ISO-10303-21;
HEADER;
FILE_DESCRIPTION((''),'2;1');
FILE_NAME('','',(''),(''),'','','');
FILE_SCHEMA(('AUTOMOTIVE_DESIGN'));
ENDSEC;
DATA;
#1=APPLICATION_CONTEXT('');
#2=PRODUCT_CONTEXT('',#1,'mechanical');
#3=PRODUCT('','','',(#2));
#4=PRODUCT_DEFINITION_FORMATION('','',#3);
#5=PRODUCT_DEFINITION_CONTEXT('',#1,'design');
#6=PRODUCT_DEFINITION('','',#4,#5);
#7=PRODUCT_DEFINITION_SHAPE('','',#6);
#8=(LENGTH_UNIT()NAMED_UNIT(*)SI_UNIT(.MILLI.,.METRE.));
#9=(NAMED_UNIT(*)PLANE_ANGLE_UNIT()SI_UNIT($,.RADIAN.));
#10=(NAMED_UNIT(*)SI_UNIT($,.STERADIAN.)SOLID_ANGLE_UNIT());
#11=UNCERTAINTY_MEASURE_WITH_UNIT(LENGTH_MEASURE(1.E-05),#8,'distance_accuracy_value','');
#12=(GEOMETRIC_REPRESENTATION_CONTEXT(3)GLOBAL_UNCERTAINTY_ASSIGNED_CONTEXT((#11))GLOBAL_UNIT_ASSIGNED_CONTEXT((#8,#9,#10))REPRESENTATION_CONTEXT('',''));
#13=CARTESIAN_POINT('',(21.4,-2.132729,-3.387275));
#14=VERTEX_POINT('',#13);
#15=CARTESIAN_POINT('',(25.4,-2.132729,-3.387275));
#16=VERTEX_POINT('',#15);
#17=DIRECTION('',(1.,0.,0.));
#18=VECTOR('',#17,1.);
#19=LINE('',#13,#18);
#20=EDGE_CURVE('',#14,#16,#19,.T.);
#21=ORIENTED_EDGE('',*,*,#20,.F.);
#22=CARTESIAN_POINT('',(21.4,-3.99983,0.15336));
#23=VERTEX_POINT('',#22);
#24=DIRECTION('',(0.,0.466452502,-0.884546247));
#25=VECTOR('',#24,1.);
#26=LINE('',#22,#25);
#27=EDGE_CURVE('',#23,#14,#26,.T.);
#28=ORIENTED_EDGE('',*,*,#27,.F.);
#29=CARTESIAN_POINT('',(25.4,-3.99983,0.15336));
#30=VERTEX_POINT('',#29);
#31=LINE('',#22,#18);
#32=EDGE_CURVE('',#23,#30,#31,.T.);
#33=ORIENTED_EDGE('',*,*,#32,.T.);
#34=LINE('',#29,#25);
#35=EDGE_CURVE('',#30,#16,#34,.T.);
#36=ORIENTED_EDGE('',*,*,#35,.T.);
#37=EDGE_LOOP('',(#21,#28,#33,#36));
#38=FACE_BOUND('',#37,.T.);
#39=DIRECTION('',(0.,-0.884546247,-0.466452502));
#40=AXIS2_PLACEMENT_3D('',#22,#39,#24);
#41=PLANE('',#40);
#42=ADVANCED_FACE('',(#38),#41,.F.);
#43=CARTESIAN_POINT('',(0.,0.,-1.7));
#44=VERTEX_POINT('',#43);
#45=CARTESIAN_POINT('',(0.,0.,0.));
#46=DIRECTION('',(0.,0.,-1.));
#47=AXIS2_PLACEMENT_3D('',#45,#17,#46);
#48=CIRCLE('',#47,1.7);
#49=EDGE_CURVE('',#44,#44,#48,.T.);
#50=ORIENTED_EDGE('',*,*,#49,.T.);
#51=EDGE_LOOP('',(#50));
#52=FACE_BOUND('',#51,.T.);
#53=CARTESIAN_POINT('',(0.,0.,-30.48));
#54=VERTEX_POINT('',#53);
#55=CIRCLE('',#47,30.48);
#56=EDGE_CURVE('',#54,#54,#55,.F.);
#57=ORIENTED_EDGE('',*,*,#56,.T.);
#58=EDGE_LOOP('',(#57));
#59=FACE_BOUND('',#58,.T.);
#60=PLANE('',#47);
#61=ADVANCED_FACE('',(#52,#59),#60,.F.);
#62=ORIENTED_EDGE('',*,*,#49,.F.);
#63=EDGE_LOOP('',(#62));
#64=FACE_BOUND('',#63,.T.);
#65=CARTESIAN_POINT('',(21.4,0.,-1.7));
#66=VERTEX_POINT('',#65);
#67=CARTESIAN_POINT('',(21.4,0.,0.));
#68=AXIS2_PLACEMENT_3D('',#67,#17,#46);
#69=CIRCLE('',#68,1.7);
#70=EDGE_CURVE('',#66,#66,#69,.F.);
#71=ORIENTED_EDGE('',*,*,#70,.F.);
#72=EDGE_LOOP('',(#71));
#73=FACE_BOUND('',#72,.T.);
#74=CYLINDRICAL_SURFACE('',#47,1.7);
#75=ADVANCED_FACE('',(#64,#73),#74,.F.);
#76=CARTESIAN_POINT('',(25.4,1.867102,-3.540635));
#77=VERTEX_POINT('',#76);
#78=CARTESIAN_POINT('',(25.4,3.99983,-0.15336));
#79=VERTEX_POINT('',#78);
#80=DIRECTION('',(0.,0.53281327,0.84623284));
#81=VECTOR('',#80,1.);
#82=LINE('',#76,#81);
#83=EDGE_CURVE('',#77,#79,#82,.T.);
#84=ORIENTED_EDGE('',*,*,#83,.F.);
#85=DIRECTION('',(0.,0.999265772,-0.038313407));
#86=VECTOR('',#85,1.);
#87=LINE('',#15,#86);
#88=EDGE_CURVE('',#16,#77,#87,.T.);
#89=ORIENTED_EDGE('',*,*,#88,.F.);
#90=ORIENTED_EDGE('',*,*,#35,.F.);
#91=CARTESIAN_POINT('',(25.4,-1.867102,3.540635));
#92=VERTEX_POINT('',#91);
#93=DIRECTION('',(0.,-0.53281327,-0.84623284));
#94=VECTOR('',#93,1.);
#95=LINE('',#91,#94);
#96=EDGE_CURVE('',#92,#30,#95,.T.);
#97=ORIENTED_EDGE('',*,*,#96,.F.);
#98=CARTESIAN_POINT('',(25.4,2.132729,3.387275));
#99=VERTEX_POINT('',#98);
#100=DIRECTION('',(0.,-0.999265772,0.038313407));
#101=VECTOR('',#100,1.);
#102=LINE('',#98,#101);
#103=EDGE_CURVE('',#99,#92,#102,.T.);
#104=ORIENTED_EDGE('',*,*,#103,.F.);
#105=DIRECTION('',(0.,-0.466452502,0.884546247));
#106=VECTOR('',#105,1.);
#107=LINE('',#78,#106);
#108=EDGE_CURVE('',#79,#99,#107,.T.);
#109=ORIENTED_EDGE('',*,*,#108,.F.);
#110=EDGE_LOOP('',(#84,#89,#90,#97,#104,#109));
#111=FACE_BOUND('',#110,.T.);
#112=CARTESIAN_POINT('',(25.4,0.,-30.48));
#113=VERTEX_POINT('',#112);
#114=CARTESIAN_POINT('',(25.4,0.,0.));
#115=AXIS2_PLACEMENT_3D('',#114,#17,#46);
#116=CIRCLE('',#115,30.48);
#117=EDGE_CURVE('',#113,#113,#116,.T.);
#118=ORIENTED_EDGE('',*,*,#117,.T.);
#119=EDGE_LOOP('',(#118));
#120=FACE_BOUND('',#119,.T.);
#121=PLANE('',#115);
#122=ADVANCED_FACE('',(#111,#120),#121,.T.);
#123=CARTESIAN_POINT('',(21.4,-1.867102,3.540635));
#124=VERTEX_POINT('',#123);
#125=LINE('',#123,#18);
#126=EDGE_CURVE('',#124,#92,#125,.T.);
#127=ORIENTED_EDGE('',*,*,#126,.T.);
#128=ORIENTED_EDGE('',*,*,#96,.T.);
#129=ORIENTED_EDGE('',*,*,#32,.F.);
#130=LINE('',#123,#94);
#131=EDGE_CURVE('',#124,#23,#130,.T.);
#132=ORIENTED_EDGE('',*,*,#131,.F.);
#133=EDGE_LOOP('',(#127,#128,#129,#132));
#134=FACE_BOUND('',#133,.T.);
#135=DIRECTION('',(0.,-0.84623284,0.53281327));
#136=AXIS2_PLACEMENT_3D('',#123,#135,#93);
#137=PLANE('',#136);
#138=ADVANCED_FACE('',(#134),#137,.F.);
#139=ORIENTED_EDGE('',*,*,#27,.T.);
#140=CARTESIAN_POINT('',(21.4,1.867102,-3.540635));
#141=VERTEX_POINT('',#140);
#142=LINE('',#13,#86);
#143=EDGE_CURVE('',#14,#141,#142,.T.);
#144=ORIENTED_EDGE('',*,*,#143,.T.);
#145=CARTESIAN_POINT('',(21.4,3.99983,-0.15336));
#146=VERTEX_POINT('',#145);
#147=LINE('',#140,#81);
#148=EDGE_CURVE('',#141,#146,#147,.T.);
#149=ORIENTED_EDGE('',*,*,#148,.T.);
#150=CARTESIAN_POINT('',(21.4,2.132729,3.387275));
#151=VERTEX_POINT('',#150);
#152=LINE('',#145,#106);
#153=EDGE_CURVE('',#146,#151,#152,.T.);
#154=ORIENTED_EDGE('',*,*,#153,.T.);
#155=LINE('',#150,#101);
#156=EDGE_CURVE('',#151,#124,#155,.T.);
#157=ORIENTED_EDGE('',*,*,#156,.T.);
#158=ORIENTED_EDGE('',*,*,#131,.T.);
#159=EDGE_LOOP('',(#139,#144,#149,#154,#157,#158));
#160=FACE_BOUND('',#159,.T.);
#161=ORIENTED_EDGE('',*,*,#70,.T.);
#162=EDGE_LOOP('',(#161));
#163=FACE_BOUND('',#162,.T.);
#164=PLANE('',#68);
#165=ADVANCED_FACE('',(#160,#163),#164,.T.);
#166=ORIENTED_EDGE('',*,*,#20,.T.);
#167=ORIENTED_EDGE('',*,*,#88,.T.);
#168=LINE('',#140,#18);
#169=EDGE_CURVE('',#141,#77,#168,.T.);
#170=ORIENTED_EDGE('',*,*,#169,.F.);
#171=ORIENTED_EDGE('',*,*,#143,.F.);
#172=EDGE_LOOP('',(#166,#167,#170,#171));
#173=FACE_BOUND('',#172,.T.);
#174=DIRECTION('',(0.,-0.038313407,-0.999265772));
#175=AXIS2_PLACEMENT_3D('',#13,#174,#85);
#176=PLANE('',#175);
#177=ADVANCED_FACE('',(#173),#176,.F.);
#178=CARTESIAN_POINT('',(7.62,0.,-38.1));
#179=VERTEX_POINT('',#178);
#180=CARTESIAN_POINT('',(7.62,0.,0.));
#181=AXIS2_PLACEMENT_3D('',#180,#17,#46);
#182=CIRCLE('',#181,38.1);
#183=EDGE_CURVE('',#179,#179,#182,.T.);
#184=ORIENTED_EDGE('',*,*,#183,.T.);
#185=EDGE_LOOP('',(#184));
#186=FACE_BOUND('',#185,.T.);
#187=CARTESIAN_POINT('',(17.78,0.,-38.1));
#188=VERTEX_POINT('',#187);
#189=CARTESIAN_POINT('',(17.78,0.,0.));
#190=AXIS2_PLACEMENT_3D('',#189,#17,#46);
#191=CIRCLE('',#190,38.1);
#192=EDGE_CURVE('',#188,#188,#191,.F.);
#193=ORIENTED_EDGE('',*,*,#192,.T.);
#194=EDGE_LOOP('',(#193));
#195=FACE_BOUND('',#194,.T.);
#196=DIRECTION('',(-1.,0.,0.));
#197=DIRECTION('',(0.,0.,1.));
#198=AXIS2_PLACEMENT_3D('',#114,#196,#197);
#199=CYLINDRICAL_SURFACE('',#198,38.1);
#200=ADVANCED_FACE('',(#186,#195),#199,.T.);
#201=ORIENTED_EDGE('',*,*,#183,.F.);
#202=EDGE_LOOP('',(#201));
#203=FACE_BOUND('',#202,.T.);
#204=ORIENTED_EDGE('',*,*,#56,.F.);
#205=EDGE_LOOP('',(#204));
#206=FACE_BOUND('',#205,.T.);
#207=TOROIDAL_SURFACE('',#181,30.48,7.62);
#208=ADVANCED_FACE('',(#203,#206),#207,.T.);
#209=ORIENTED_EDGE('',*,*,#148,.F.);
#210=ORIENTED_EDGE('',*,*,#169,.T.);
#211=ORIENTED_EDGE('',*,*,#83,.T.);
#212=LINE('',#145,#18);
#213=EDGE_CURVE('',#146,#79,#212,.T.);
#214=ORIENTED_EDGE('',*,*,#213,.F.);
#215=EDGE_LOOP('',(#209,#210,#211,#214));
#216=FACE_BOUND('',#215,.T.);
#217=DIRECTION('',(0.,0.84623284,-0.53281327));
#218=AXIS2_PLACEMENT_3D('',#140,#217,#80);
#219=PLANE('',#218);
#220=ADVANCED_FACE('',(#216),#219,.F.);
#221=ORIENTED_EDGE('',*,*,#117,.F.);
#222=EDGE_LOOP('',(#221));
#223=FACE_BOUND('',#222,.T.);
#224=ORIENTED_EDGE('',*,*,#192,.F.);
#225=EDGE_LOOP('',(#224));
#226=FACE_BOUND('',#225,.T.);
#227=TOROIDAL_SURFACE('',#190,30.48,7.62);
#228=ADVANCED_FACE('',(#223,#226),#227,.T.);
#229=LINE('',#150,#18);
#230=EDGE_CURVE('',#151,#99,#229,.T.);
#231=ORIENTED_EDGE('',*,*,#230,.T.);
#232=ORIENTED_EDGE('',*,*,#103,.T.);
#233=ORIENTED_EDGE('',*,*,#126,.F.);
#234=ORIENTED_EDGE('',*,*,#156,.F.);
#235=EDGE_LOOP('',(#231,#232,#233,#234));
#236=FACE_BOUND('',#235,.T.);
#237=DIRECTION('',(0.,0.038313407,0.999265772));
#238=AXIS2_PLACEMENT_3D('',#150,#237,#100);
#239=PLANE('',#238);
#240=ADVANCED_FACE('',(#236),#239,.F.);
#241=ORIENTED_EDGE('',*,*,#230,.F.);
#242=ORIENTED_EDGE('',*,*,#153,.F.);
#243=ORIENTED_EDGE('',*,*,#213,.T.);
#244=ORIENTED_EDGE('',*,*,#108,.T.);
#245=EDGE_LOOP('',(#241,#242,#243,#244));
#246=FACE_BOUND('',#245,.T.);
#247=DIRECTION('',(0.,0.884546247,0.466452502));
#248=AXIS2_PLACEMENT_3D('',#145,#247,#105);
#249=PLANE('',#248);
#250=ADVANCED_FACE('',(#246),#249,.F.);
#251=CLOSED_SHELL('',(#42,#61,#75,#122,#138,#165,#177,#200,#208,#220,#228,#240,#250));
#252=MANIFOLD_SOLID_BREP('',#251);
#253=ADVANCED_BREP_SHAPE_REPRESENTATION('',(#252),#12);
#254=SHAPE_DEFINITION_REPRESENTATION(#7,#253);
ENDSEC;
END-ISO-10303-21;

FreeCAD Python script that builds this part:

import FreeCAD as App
import Part
import Sketcher

V = App.Vector
Q = App.Units.Quantity


def edges_at(feature, points):
    """Names of the edges that pass closest to the given points."""
    edges = feature.Shape.Edges
    near = lambda p: min(range(len(edges)), key=lambda i: edges[i].distToShape(Part.Vertex(*p))[0])
    return sorted({f"Edge{near(p) + 1}" for p in points})

doc = App.newDocument("Part")
body = doc.addObject("PartDesign::Body", "Body")

# Sketch on YZ plane
sketch1 = doc.addObject("Sketcher::SketchObject", "Sketch")
body.addObject(sketch1)
sketch1.AttachmentSupport = (doc.YZ_Plane, [""])
sketch1.MapMode = "FlatFace"
sketch1.addGeometry(Part.Circle(V(0, 0, 0), V(0, 0, 1), 38), False)
sketch1.addConstraint(Sketcher.Constraint("Coincident", 0, 3, -1, 1))
sketch1.addConstraint(Sketcher.Constraint("Diameter", 0, Q("3 in")))
pad1 = doc.addObject("PartDesign::Pad", "Pad")
body.addObject(pad1)
pad1.Profile = sketch1
pad1.Length = Q("1 in")
doc.recompute()

fillet = doc.addObject("PartDesign::Fillet", "Fillet")
body.addObject(fillet)
fillet.Base = (pad1, edges_at(pad1, [(25.4, 0, 38.1)]))
fillet.Radius = Q("0.3 in")
doc.recompute()

fillet2 = doc.addObject("PartDesign::Fillet", "Fillet001")
body.addObject(fillet2)
fillet2.Base = (fillet, edges_at(fillet, [(0, 0, 38.1)]))
fillet2.Radius = Q("0.3 in")

# Sketch on YZ plane
sketch2 = doc.addObject("Sketcher::SketchObject", "Sketch001")
body.addObject(sketch2)
sketch2.AttachmentSupport = (doc.YZ_Plane, [""])
sketch2.MapMode = "FlatFace"
sketch2.AttachmentOffset = App.Placement(V(0, 0, 1 * 25.4), App.Rotation())
sketch2.addGeometry(Part.Circle(V(0, 0, 0), V(0, 0, 1), 1.7), False)
sketch2.addConstraint(Sketcher.Constraint("Coincident", 0, 3, -1, 1))
sketch2.addConstraint(Sketcher.Constraint("Diameter", 0, 3.4))
pocket1 = doc.addObject("PartDesign::Pocket", "Pocket")
body.addObject(pocket1)
pocket1.Profile = sketch2
pocket1.Length = Q("1 in")

# Sketch on YZ plane
sketch3 = doc.addObject("Sketcher::SketchObject", "Sketch002")
body.addObject(sketch3)
sketch3.AttachmentSupport = (doc.YZ_Plane, [""])
sketch3.MapMode = "FlatFace"
sketch3.AttachmentOffset = App.Placement(V(0, 0, 1 * 25.4), App.Rotation())
sketch3.addGeometry(Part.LineSegment(V(2.1, 3.4, 0), V(-1.9, 3.5, 0)), False)
sketch3.addGeometry(Part.LineSegment(V(-1.9, 3.5, 0), V(-4, 0.2, 0)), False)
sketch3.addGeometry(Part.LineSegment(V(-4, 0.2, 0), V(-2.1, -3.4, 0)), False)
sketch3.addGeometry(Part.LineSegment(V(-2.1, -3.4, 0), V(1.9, -3.5, 0)), False)
sketch3.addGeometry(Part.LineSegment(V(1.9, -3.5, 0), V(4, -0.2, 0)), False)
sketch3.addGeometry(Part.LineSegment(V(4, -0.2, 0), V(2.1, 3.4, 0)), False)
sketch3.addConstraint(Sketcher.Constraint("Coincident", 0, 2, 1, 1))
sketch3.addConstraint(Sketcher.Constraint("Coincident", 1, 2, 2, 1))
sketch3.addConstraint(Sketcher.Constraint("Coincident", 2, 2, 3, 1))
sketch3.addConstraint(Sketcher.Constraint("Coincident", 3, 2, 4, 1))
sketch3.addConstraint(Sketcher.Constraint("Coincident", 4, 2, 5, 1))
sketch3.addConstraint(Sketcher.Constraint("Coincident", 5, 2, 0, 1))
sketch3.addConstraint(Sketcher.Constraint("Symmetric", 0, 2, 3, 2, -1, 1))
sketch3.addConstraint(Sketcher.Constraint("Symmetric", 1, 2, 4, 2, -1, 1))
sketch3.addConstraint(Sketcher.Constraint("Symmetric", 2, 2, 5, 2, -1, 1))
sketch3.addConstraint(Sketcher.Constraint("Equal", 0, 1))
sketch3.addConstraint(Sketcher.Constraint("Equal", 1, 2))
sketch3.addConstraint(Sketcher.Constraint("DistanceX", 0, 2, -1, 1, 1.867102))
sketch3.addConstraint(Sketcher.Constraint("DistanceX", 1, 2, 2, 2, 1.867102))
sketch3.addConstraint(Sketcher.Constraint("Distance", 0, 4.002769))
sketch3.addConstraint(Sketcher.Constraint("DistanceX", 1, 2, -1, 1, 3.99983))
pocket2 = doc.addObject("PartDesign::Pocket", "Pocket001")
body.addObject(pocket2)
pocket2.Profile = sketch3
pocket2.Length = 4

doc.recompute()
